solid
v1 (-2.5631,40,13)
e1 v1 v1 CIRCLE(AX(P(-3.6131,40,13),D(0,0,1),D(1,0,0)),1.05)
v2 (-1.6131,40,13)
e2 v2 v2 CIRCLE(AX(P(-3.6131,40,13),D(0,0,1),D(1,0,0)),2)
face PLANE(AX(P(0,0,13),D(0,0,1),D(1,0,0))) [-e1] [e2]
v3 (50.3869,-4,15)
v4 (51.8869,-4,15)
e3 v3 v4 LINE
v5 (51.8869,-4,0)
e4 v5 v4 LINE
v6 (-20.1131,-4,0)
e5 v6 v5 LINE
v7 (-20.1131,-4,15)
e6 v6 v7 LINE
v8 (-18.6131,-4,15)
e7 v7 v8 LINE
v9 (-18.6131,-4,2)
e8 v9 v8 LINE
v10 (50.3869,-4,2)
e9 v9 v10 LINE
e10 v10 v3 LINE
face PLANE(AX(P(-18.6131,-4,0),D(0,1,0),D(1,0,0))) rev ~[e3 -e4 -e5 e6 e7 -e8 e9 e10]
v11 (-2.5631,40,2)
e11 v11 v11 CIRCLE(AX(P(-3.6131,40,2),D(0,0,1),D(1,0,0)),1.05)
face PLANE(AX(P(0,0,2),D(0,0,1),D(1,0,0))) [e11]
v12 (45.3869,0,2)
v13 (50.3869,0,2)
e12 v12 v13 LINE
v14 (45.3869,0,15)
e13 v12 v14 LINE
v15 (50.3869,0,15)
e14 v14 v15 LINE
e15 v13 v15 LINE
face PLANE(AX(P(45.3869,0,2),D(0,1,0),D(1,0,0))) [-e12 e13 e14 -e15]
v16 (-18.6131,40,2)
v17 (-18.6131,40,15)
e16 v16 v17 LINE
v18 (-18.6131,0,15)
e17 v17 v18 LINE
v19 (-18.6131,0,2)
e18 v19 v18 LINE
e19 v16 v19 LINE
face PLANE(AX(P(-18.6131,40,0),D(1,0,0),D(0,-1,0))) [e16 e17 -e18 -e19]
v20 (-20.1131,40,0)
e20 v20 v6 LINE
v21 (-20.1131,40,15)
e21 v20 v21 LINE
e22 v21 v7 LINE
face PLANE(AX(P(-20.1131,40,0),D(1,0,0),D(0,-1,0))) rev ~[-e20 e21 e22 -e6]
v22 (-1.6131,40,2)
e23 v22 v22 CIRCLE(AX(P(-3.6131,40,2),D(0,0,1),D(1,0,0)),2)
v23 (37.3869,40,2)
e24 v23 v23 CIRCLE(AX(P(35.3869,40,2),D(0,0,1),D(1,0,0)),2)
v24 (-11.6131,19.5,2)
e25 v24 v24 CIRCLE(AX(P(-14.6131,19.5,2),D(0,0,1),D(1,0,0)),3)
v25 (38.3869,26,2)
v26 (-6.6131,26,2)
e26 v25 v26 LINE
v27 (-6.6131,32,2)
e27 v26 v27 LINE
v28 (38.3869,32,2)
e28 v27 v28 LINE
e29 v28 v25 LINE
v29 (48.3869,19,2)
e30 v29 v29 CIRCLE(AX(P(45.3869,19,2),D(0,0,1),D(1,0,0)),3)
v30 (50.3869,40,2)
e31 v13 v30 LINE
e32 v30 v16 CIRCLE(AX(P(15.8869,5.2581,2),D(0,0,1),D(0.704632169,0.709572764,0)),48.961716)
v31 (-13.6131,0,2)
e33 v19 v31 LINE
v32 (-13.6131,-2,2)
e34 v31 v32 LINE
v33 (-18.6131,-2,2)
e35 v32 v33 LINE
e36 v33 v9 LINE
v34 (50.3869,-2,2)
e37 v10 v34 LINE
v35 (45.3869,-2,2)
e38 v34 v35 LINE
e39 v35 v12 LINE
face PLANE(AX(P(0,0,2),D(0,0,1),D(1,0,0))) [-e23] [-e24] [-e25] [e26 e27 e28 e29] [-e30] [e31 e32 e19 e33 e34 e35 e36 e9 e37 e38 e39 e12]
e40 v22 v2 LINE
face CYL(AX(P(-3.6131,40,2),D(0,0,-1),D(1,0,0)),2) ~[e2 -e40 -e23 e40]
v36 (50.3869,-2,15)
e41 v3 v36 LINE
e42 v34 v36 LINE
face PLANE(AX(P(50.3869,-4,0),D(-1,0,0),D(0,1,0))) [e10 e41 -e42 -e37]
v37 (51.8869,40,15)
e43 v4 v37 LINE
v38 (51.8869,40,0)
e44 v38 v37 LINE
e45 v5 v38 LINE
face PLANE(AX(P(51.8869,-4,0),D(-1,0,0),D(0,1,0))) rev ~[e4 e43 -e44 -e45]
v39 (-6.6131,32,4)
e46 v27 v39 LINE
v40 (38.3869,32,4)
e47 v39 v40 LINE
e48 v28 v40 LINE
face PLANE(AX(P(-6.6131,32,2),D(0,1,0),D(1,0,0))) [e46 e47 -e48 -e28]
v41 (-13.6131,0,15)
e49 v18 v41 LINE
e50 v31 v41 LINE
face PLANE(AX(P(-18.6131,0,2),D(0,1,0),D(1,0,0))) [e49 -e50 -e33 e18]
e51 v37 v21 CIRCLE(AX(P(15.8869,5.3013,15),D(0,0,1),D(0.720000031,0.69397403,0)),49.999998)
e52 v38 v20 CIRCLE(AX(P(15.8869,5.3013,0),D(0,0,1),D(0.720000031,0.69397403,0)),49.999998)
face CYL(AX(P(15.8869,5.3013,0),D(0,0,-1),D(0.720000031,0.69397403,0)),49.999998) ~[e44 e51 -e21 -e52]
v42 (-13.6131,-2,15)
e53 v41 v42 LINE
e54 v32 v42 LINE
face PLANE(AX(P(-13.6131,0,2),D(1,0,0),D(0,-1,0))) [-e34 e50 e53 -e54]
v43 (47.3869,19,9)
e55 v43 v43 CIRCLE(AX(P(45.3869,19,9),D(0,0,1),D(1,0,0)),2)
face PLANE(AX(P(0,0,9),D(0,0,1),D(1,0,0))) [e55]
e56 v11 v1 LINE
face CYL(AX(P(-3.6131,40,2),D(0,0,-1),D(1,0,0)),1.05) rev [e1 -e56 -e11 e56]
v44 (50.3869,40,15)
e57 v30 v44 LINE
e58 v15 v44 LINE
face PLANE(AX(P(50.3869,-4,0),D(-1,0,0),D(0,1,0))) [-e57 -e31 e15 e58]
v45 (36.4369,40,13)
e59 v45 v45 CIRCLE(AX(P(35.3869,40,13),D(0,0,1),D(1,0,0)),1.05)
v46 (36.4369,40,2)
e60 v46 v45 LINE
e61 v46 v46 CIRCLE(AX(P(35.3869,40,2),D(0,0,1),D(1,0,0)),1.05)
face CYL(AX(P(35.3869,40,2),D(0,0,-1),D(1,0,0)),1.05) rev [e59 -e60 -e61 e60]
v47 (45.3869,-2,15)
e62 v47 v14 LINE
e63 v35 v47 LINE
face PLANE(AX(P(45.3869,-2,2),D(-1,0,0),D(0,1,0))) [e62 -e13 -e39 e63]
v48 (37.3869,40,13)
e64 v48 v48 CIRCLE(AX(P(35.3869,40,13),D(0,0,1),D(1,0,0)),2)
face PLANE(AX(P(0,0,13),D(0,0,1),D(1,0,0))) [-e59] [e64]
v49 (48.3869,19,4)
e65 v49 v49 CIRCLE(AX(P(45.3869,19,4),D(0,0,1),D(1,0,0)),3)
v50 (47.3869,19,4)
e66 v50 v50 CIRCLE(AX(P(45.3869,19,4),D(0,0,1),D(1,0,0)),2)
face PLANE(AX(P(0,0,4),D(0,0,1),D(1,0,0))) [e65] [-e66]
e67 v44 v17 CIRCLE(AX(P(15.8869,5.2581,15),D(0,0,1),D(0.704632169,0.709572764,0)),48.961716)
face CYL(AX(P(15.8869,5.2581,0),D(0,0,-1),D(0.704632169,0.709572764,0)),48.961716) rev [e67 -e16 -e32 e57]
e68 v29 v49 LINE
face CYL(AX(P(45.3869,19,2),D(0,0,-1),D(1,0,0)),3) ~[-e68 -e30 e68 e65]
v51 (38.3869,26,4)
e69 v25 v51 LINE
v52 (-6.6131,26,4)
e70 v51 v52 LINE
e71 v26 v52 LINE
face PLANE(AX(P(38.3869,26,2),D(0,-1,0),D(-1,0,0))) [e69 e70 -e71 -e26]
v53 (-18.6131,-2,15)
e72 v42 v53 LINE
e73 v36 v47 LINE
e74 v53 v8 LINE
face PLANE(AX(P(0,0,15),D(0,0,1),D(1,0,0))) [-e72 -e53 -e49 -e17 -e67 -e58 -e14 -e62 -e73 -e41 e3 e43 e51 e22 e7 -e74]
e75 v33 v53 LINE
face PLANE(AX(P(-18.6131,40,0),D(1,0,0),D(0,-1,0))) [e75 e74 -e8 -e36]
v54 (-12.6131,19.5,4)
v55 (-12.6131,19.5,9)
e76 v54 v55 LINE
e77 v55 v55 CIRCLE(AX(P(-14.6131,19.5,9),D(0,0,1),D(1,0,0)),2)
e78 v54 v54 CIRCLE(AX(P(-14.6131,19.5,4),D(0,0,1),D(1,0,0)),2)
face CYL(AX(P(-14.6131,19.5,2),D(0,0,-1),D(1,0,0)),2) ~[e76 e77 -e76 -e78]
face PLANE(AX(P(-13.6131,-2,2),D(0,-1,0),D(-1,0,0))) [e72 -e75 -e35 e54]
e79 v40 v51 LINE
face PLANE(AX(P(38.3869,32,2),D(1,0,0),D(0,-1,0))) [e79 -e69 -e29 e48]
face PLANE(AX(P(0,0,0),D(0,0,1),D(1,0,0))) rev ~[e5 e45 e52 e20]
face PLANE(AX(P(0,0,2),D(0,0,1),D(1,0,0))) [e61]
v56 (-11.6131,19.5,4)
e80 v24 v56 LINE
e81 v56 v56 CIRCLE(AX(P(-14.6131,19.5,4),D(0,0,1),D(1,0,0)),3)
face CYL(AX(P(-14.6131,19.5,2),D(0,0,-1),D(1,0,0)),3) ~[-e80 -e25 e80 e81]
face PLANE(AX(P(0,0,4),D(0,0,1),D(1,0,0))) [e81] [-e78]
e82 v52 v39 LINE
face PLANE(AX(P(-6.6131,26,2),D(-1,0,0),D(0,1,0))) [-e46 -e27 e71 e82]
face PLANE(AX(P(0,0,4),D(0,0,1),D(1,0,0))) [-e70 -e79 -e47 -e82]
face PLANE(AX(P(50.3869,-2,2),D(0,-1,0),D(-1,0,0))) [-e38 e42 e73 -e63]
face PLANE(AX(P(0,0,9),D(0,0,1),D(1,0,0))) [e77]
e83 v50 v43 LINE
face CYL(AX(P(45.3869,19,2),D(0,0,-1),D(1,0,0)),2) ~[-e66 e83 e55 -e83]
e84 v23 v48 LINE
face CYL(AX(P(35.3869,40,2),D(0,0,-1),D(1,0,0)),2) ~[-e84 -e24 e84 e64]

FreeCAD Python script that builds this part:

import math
import FreeCAD as App
import Part
import Sketcher
Q = App.Units.Quantity


def add_polygon(sketch, points):
    """Adds a closed chain of lines whose ends are joined by coincident constraints."""
    first, n = sketch.GeometryCount, len(points)
    for a, b in zip(points, points[1:] + points[:1]):
        sketch.addGeometry(Part.LineSegment(App.Vector(*a, 0), App.Vector(*b, 0)), False)
    for i in range(n):
        sketch.addConstraint(Sketcher.Constraint("Coincident", first + i, 2, first + (i + 1) % n, 1))

doc = App.newDocument("Part")
params = doc.addObject("Spreadsheet::Sheet", "Params")
for row, (alias, value) in enumerate([
    ("sketch1_height", "44 mm"),
    ("sketch1_width", "69 mm"),
    ("pad1_length", "2 mm"),
    ("sketch2_radius", "50 mm"),
    ("sketch2_height", "44 mm"),
    ("sketch2_width", "1.5 mm"),
    ("pad2_length", "15 mm"),
    ("sketch3_diameter", "6 mm"),
    ("sketch3_diameter2", "4 mm"),
    ("sketch3_width", "45 mm"),
    ("sketch3_height", "6 mm"),
    ("pad3_length", "2 mm"),
    ("sketch4_diameter", "4 mm"),
    ("pad4_length", "7 mm"),
    ("sketch5_diameter", "4 mm"),
    ("sketch5_diameter2", "2.1 mm"),
    ("pad5_length", "11 mm"),
    ("sketch6_width", "5 mm"),
    ("sketch6_height", "2 mm"),
    ("pad6_length", "13 mm"),
], start=1):
    params.set(f"A{row}", alias)
    params.set(f"B{row}", "=" + value)
    params.setAlias(f"B{row}", alias)

body = doc.addObject("PartDesign::Body", "Body")

# Sketch on XY plane
sketch1 = doc.addObject("Sketcher::SketchObject", "Sketch")
body.addObject(sketch1)
sketch1.AttachmentSupport = (doc.XY_Plane, [""])
sketch1.MapMode = "FlatFace"
sketch1.addGeometry(Part.LineSegment(App.Vector(-19, 40, 0), App.Vector(-19, -4, 0)), False)
sketch1.addGeometry(Part.LineSegment(App.Vector(-19, -4, 0), App.Vector(50, -4, 0)), False)
sketch1.addGeometry(Part.LineSegment(App.Vector(50, -4, 0), App.Vector(50, 40, 0)), False)
sketch1.addGeometry(Part.ArcOfCircle(Part.Circle(App.Vector(16, 5, 0), App.Vector(0, 0, 1), 49), math.radians(45), math.radians(135)), False)
sketch1.addConstraint(Sketcher.Constraint("Coincident", 0, 2, 1, 1))
sketch1.addConstraint(Sketcher.Constraint("Coincident", 1, 2, 2, 1))
sketch1.addConstraint(Sketcher.Constraint("Coincident", 2, 2, 3, 1))
sketch1.addConstraint(Sketcher.Constraint("Coincident", 3, 2, 0, 1))
sketch1.addConstraint(Sketcher.Constraint("Vertical", 0))
sketch1.addConstraint(Sketcher.Constraint("Horizontal", 1))
sketch1.addConstraint(Sketcher.Constraint("Vertical", 2))
sketch1.addConstraint(Sketcher.Constraint("Horizontal", 2, 2, 3, 2))
sketch1.addConstraint(Sketcher.Constraint("DistanceY", 0, 2, 0, 1, Q("44 mm")))
sketch1.addConstraint(Sketcher.Constraint("DistanceX", 1, 1, 1, 2, Q("69 mm")))
sketch1.addConstraint(Sketcher.Constraint("DistanceY", 0, 2, -1, 1, Q("4 mm")))
sketch1.addConstraint(Sketcher.Constraint("Radius", 3, Q("48.9617 mm")))
sketch1.addConstraint(Sketcher.Constraint("DistanceX", -1, 1, 3, 3, Q("15.887 mm")))
sketch1.setExpression("Constraints[8]", "Params.sketch1_height")
sketch1.setExpression("Constraints[9]", "Params.sketch1_width")
pad1 = doc.addObject("PartDesign::Pad", "Pad")
body.addObject(pad1)
pad1.Profile = sketch1
pad1.setExpression("Length", "Params.pad1_length")

# Sketch on XY plane
sketch2 = doc.addObject("Sketcher::SketchObject", "Sketch001")
body.addObject(sketch2)
sketch2.AttachmentSupport = (doc.XY_Plane, [""])
sketch2.MapMode = "FlatFace"
sketch2.addGeometry(Part.LineSegment(App.Vector(-20.1, 40, 0), App.Vector(-20.1, -4, 0)), False)
sketch2.addGeometry(Part.LineSegment(App.Vector(-20.1, -4, 0), App.Vector(-18.6, -4, 0)), False)
sketch2.addGeometry(Part.LineSegment(App.Vector(-18.6, -4, 0), App.Vector(-18.6, 40, 0)), False)
sketch2.addGeometry(Part.ArcOfCircle(Part.Circle(App.Vector(15.9, 5.3, 0), App.Vector(0, 0, 1), 49), math.radians(45), math.radians(135)), False)
sketch2.addGeometry(Part.LineSegment(App.Vector(50.4, 40, 0), App.Vector(50.4, -4, 0)), False)
sketch2.addGeometry(Part.LineSegment(App.Vector(50.4, -4, 0), App.Vector(51.9, -4, 0)), False)
sketch2.addGeometry(Part.LineSegment(App.Vector(51.9, -4, 0), App.Vector(51.9, 40, 0)), False)
sketch2.addGeometry(Part.ArcOfCircle(Part.Circle(App.Vector(15.9, 5.3, 0), App.Vector(0, 0, 1), 50), math.radians(44), math.radians(136)), False)
sketch2.addConstraint(Sketcher.Constraint("Coincident", 0, 2, 1, 1))
sketch2.addConstraint(Sketcher.Constraint("Coincident", 1, 2, 2, 1))
sketch2.addConstraint(Sketcher.Constraint("Coincident", 2, 2, 3, 2))
sketch2.addConstraint(Sketcher.Constraint("Coincident", 3, 1, 4, 1))
sketch2.addConstraint(Sketcher.Constraint("Coincident", 4, 2, 5, 1))
sketch2.addConstraint(Sketcher.Constraint("Coincident", 5, 2, 6, 1))
sketch2.addConstraint(Sketcher.Constraint("Coincident", 6, 2, 7, 1))
sketch2.addConstraint(Sketcher.Constraint("Coincident", 7, 2, 0, 1))
sketch2.addConstraint(Sketcher.Constraint("Vertical", 0))
sketch2.addConstraint(Sketcher.Constraint("Horizontal", 1))
sketch2.addConstraint(Sketcher.Constraint("Vertical", 2))
sketch2.addConstraint(Sketcher.Constraint("Vertical", 4))
sketch2.addConstraint(Sketcher.Constraint("Horizontal", 5))
sketch2.addConstraint(Sketcher.Constraint("Vertical", 6))
sketch2.addConstraint(Sketcher.Constraint("Horizontal", 2, 2, 3, 1))
sketch2.addConstraint(Sketcher.Constraint("Horizontal", 1, 2, 4, 2))
sketch2.addConstraint(Sketcher.Constraint("Horizontal", 3, 1, 6, 2))
sketch2.addConstraint(Sketcher.Constraint("Horizontal", 6, 2, 7, 2))
sketch2.addConstraint(Sketcher.Constraint("Vertical", 3, 3, 7, 3))
sketch2.addConstraint(Sketcher.Constraint("Radius", 7, Q("50 mm")))
sketch2.addConstraint(Sketcher.Constraint("DistanceY", 0, 2, 0, 1, Q("44 mm")))
sketch2.addConstraint(Sketcher.Constraint("DistanceX", 1, 1, 1, 2, Q("1.5 mm")))
sketch2.addConstraint(Sketcher.Constraint("DistanceY", 0, 2, -1, 1, Q("4 mm")))
sketch2.addConstraint(Sketcher.Constraint("DistanceX", 0, 2, 3, 3, Q("36 mm")))
sketch2.addConstraint(Sketcher.Constraint("Radius", 3, Q("48.9617 mm")))
sketch2.addConstraint(Sketcher.Constraint("DistanceX", -1, 1, 3, 3, Q("15.887 mm")))
sketch2.setExpression("Constraints[19]", "Params.sketch2_radius")
sketch2.setExpression("Constraints[20]", "Params.sketch2_height")
sketch2.setExpression("Constraints[21]", "Params.sketch2_width")
pad2 = doc.addObject("PartDesign::Pad", "Pad001")
body.addObject(pad2)
pad2.Profile = sketch2
pad2.setExpression("Length", "Params.pad2_length")

# Sketch on XY plane
sketch3 = doc.addObject("Sketcher::SketchObject", "Sketch002")
body.addObject(sketch3)
sketch3.AttachmentSupport = (doc.XY_Plane, [""])
sketch3.MapMode = "FlatFace"
sketch3.AttachmentOffset = App.Placement(App.Vector(0, 0, 2), App.Rotation())
sketch3.addGeometry(Part.Circle(App.Vector(-14.6, 19.5, 0), App.Vector(0, 0, 1), 3), False)  # 0
sketch3.addGeometry(Part.Circle(App.Vector(-14.6, 19.5, 0), App.Vector(0, 0, 1), 2), False)  # 1
sketch3.addGeometry(Part.Circle(App.Vector(45.4, 19, 0), App.Vector(0, 0, 1), 3), False)  # 2
sketch3.addGeometry(Part.Circle(App.Vector(45.4, 19, 0), App.Vector(0, 0, 1), 2), False)  # 3
add_polygon(sketch3, [(38.4, 32), (-6.6, 32), (-6.6, 26), (38.4, 26)])  # lines 4-7
sketch3.addConstraint(Sketcher.Constraint("Horizontal", 4))
sketch3.addConstraint(Sketcher.Constraint("Vertical", 5))
sketch3.addConstraint(Sketcher.Constraint("Horizontal", 6))
sketch3.addConstraint(Sketcher.Constraint("Vertical", 7))
sketch3.addConstraint(Sketcher.Constraint("Coincident", 1, 3, 0, 3))
sketch3.addConstraint(Sketcher.Constraint("Coincident", 3, 3, 2, 3))
sketch3.addConstraint(Sketcher.Constraint("Equal", 0, 2))
sketch3.addConstraint(Sketcher.Constraint("Equal", 1, 3))
sketch3.addConstraint(Sketcher.Constraint("Diameter", 0, Q("6 mm")))
sketch3.addConstraint(Sketcher.Constraint("Diameter", 1, Q("4 mm")))
sketch3.addConstraint(Sketcher.Constraint("DistanceX", 4, 2, 4, 1, Q("45 mm")))
sketch3.addConstraint(Sketcher.Constraint("DistanceY", 5, 2, 5, 1, Q("6 mm")))
sketch3.addConstraint(Sketcher.Constraint("DistanceX", 0, 3, 2, 3, Q("60 mm")))
sketch3.addConstraint(Sketcher.Constraint("DistanceY", -1, 1, 2, 3, Q("19 mm")))
sketch3.addConstraint(Sketcher.Constraint("DistanceY", -1, 1, 4, 2, Q("32 mm")))
sketch3.addConstraint(Sketcher.Constraint("DistanceX", 0, 3, 4, 2, Q("8 mm")))
sketch3.addConstraint(Sketcher.Constraint("DistanceY", -1, 1, 0, 3, Q("19.5 mm")))
sketch3.addConstraint(Sketcher.Constraint("DistanceX", 0, 3, -1, 1, Q("14.613 mm")))
sketch3.setExpression("Constraints[12]", "Params.sketch3_diameter")
sketch3.setExpression("Constraints[13]", "Params.sketch3_diameter2")
sketch3.setExpression("Constraints[14]", "Params.sketch3_width")
sketch3.setExpression("Constraints[15]", "Params.sketch3_height")
pad3 = doc.addObject("PartDesign::Pad", "Pad002")
body.addObject(pad3)
pad3.Profile = sketch3
pad3.setExpression("Length", "Params.pad3_length")

# Sketch on XY plane
sketch4 = doc.addObject("Sketcher::SketchObject", "Sketch003")
body.addObject(sketch4)
sketch4.AttachmentSupport = (doc.XY_Plane, [""])
sketch4.MapMode = "FlatFace"
sketch4.AttachmentOffset = App.Placement(App.Vector(0, 0, 2), App.Rotation())
sketch4.addGeometry(Part.Circle(App.Vector(-14.6, 19.5, 0), App.Vector(0, 0, 1), 2), False)
sketch4.addGeometry(Part.Circle(App.Vector(45.4, 19, 0), App.Vector(0, 0, 1), 2), False)
sketch4.addConstraint(Sketcher.Constraint("Equal", 0, 1))
sketch4.addConstraint(Sketcher.Constraint("Diameter", 0, Q("4 mm")))
sketch4.addConstraint(Sketcher.Constraint("DistanceX", 0, 3, 1, 3, Q("60 mm")))
sketch4.addConstraint(Sketcher.Constraint("DistanceY", -1, 1, 1, 3, Q("19 mm")))
sketch4.addConstraint(Sketcher.Constraint("DistanceY", -1, 1, 0, 3, Q("19.5 mm")))
sketch4.addConstraint(Sketcher.Constraint("DistanceX", 0, 3, -1, 1, Q("14.613 mm")))
sketch4.setExpression("Constraints[1]", "Params.sketch4_diameter")
pad4 = doc.addObject("PartDesign::Pad", "Pad003")
body.addObject(pad4)
pad4.Profile = sketch4
pad4.setExpression("Length", "Params.pad4_length")

# Sketch on XY plane
sketch5 = doc.addObject("Sketcher::SketchObject", "Sketch004")
body.addObject(sketch5)
sketch5.AttachmentSupport = (doc.XY_Plane, [""])
sketch5.MapMode = "FlatFace"
sketch5.AttachmentOffset = App.Placement(App.Vector(0, 0, 2), App.Rotation())
sketch5.addGeometry(Part.Circle(App.Vector(-3.6, 40, 0), App.Vector(0, 0, 1), 2), False)
sketch5.addGeometry(Part.Circle(App.Vector(-3.6, 40, 0), App.Vector(0, 0, 1), 1.1), False)
sketch5.addGeometry(Part.Circle(App.Vector(35.4, 40, 0), App.Vector(0, 0, 1), 2), False)
sketch5.addGeometry(Part.Circle(App.Vector(35.4, 40, 0), App.Vector(0, 0, 1), 1.1), False)
sketch5.addConstraint(Sketcher.Constraint("Coincident", 1, 3, 0, 3))
sketch5.addConstraint(Sketcher.Constraint("Coincident", 3, 3, 2, 3))
sketch5.addConstraint(Sketcher.Constraint("Equal", 0, 2))
sketch5.addConstraint(Sketcher.Constraint("Equal", 1, 3))
sketch5.addConstraint(Sketcher.Constraint("Horizontal", 1, 3, 2, 3))
sketch5.addConstraint(Sketcher.Constraint("Diameter", 0, Q("4 mm")))
sketch5.addConstraint(Sketcher.Constraint("Diameter", 1, Q("2.1 mm")))
sketch5.addConstraint(Sketcher.Constraint("DistanceY", -1, 1, 0, 3, Q("40 mm")))
sketch5.addConstraint(Sketcher.Constraint("DistanceX", 0, 3, 2, 3, Q("39 mm")))
sketch5.addConstraint(Sketcher.Constraint("DistanceX", 0, 3, -1, 1, Q("3.613 mm")))
sketch5.setExpression("Constraints[5]", "Params.sketch5_diameter")
sketch5.setExpression("Constraints[6]", "Params.sketch5_diameter2")
pad5 = doc.addObject("PartDesign::Pad", "Pad004")
body.addObject(pad5)
pad5.Profile = sketch5
pad5.setExpression("Length", "Params.pad5_length")

# Sketch on XY plane
sketch6 = doc.addObject("Sketcher::SketchObject", "Sketch005")
body.addObject(sketch6)
sketch6.AttachmentSupport = (doc.XY_Plane, [""])
sketch6.MapMode = "FlatFace"
sketch6.AttachmentOffset = App.Placement(App.Vector(0, 0, 2), App.Rotation())
add_polygon(sketch6, [(-18.6, 0), (-18.6, -2), (-13.6, -2), (-13.6, 0)])  # lines 0-3
add_polygon(sketch6, [(50.4, -2), (50.4, 0), (45.4, 0), (45.4, -2)])  # lines 4-7
sketch6.addConstraint(Sketcher.Constraint("Vertical", 0))
sketch6.addConstraint(Sketcher.Constraint("Horizontal", 1))
sketch6.addConstraint(Sketcher.Constraint("Vertical", 2))
sketch6.addConstraint(Sketcher.Constraint("Horizontal", 3))
sketch6.addConstraint(Sketcher.Constraint("Vertical", 4))
sketch6.addConstraint(Sketcher.Constraint("Horizontal", 5))
sketch6.addConstraint(Sketcher.Constraint("Vertical", 6))
sketch6.addConstraint(Sketcher.Constraint("Horizontal", 7))
sketch6.addConstraint(Sketcher.Constraint("PointOnObject", 2, 2, -1))
sketch6.addConstraint(Sketcher.Constraint("PointOnObject", 4, 2, -1))
sketch6.addConstraint(Sketcher.Constraint("Horizontal", 1, 2, 6, 2))
sketch6.addConstraint(Sketcher.Constraint("Equal", 3, 5))
sketch6.addConstraint(Sketcher.Constraint("DistanceX", 1, 1, 1, 2, Q("5 mm")))
sketch6.addConstraint(Sketcher.Constraint("DistanceY", 0, 2, 0, 1, Q("2 mm")))
sketch6.addConstraint(Sketcher.Constraint("DistanceX", 2, 2, 5, 2, Q("59 mm")))
sketch6.addConstraint(Sketcher.Constraint("DistanceX", 0, 2, -1, 1, Q("18.613 mm")))
sketch6.setExpression("Constraints[20]", "Params.sketch6_width")
sketch6.setExpression("Constraints[21]", "Params.sketch6_height")
pad6 = doc.addObject("PartDesign::Pad", "Pad005")
body.addObject(pad6)
pad6.Profile = sketch6
pad6.setExpression("Length", "Params.pad6_length")

doc.recompute()
